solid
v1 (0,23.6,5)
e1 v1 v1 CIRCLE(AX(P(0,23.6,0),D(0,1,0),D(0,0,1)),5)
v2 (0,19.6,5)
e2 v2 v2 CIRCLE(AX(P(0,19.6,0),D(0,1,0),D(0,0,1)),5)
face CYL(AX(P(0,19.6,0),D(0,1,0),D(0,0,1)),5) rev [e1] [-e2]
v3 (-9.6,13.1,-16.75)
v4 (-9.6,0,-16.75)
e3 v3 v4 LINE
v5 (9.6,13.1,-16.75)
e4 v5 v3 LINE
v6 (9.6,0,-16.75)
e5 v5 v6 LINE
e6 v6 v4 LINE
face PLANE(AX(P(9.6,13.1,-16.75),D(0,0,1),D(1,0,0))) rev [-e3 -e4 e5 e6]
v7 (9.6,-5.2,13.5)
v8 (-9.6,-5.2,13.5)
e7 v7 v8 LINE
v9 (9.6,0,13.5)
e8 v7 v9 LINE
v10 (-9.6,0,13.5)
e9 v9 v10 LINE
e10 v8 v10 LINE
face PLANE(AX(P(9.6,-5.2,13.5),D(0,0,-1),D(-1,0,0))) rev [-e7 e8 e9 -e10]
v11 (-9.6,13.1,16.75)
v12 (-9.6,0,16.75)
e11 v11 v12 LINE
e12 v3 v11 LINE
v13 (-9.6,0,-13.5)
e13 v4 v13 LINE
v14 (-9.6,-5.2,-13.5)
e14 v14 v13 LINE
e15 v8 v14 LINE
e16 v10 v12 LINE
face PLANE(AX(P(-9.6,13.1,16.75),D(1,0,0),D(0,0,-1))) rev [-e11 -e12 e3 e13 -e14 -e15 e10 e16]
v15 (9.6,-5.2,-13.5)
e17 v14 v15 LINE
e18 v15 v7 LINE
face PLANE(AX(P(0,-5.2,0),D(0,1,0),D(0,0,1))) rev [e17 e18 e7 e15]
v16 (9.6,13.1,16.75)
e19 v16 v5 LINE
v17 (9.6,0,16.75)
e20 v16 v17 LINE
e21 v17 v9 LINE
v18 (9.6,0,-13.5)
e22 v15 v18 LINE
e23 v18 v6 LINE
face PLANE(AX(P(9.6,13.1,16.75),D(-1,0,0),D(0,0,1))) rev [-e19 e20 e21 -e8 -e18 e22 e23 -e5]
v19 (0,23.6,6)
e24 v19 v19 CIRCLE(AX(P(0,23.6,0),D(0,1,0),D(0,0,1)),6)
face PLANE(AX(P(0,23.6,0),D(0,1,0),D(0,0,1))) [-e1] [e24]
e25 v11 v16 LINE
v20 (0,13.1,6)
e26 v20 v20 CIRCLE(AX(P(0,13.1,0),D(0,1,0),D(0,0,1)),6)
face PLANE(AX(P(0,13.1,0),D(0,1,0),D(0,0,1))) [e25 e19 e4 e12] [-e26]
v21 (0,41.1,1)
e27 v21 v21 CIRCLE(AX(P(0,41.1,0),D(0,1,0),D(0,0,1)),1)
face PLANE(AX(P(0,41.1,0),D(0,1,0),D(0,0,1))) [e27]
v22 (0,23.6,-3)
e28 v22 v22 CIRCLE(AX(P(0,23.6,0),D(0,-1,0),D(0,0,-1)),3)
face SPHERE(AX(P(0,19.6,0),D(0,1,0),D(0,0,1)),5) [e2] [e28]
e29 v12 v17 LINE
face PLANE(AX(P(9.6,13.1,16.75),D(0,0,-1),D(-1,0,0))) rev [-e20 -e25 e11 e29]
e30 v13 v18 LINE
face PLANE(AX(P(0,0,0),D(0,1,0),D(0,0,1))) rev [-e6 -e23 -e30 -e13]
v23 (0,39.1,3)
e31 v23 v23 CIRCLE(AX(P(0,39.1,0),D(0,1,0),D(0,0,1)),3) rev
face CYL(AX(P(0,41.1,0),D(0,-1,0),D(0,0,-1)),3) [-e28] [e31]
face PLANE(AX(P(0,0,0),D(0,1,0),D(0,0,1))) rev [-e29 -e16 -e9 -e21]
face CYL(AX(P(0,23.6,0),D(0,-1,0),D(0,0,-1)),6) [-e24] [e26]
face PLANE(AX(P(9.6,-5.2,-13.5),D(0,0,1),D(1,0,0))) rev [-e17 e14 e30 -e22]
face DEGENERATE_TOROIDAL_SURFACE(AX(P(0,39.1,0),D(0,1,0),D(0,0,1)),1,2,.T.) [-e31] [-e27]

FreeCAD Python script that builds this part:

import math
import FreeCAD as App
import Part
import Sketcher

V = App.Vector


def edges_at(feature, points):
    """Names of the edges that pass closest to the given points."""
    edges = feature.Shape.Edges
    near = lambda p: min(range(len(edges)), key=lambda i: edges[i].distToShape(Part.Vertex(*p))[0])
    return sorted({f"Edge{near(p) + 1}" for p in points})

doc = App.newDocument("Part")
body = doc.addObject("PartDesign::Body", "Body")

# Sketch on XZ plane
sketch1 = body.newObject("Sketcher::SketchObject", "Sketch")
sketch1.AttachmentSupport = (doc.getObject("XZ_Plane"), [""])
sketch1.MapMode = "FlatFace"
sketch1.addGeometry(Part.LineSegment(V(-9.6, -16.75, 0), V(-9.6, 16.75, 0)), False)
sketch1.addGeometry(Part.LineSegment(V(-9.6, 16.75, 0), V(9.6, 16.75, 0)), False)
sketch1.addGeometry(Part.LineSegment(V(9.6, 16.75, 0), V(9.6, -16.75, 0)), False)
sketch1.addGeometry(Part.LineSegment(V(9.6, -16.75, 0), V(-9.6, -16.75, 0)), False)
sketch1.addConstraint(Sketcher.Constraint("Coincident", 0, 2, 1, 1))
sketch1.addConstraint(Sketcher.Constraint("Coincident", 1, 2, 2, 1))
sketch1.addConstraint(Sketcher.Constraint("Coincident", 2, 2, 3, 1))
sketch1.addConstraint(Sketcher.Constraint("Coincident", 3, 2, 0, 1))
sketch1.addConstraint(Sketcher.Constraint("Vertical", 0))
sketch1.addConstraint(Sketcher.Constraint("Horizontal", 1))
sketch1.addConstraint(Sketcher.Constraint("Vertical", 2))
sketch1.addConstraint(Sketcher.Constraint("Horizontal", 3))
sketch1.addConstraint(Sketcher.Constraint("Symmetric", 0, 2, 2, 2, -1, 1))
sketch1.addConstraint(Sketcher.Constraint("DistanceX", 1, 1, 1, 2, 19.2))
sketch1.addConstraint(Sketcher.Constraint("DistanceY", 0, 1, 0, 2, 33.5))
pad1 = body.newObject("PartDesign::Pad", "Pad")
pad1.Profile = sketch1
pad1.Length = 13.1
pad1.Reversed = True

# Sketch on XZ plane
sketch2 = body.newObject("Sketcher::SketchObject", "Sketch001")
sketch2.AttachmentSupport = (doc.getObject("XZ_Plane"), [""])
sketch2.MapMode = "FlatFace"
sketch2.AttachmentOffset = App.Placement(V(0, 0, -13.1), App.Rotation())
sketch2.addGeometry(Part.Circle(V(0, 0, 0), V(0, 0, 1), 6), False)
sketch2.addConstraint(Sketcher.Constraint("Coincident", 0, 3, -1, 1))
sketch2.addConstraint(Sketcher.Constraint("Diameter", 0, 12.0))
pad2 = body.newObject("PartDesign::Pad", "Pad001")
pad2.Profile = sketch2
pad2.Length = 10.5
pad2.Reversed = True

# Sketch on XZ plane
sketch3 = body.newObject("Sketcher::SketchObject", "Sketch002")
sketch3.AttachmentSupport = (doc.getObject("XZ_Plane"), [""])
sketch3.MapMode = "FlatFace"
sketch3.AttachmentOffset = App.Placement(V(0, 0, -23.6), App.Rotation())
sketch3.addGeometry(Part.Circle(V(0, 0, 0), V(0, 0, 1), 5), False)
sketch3.addConstraint(Sketcher.Constraint("Coincident", 0, 3, -1, 1))
sketch3.addConstraint(Sketcher.Constraint("Diameter", 0, 10.0))
pocket1 = body.newObject("PartDesign::Pocket", "Pocket")
pocket1.Profile = sketch3
pocket1.Length = 4
pocket1.Reversed = True

# Sketch on XZ plane
sketch4 = body.newObject("Sketcher::SketchObject", "Sketch003")
sketch4.AttachmentSupport = (doc.getObject("XZ_Plane"), [""])
sketch4.MapMode = "FlatFace"
sketch4.AttachmentOffset = App.Placement(V(0, 0, -19.6), App.Rotation())
sketch4.addGeometry(Part.Circle(V(0, 0, 0), V(0, 0, 1), 3), False)
sketch4.addConstraint(Sketcher.Constraint("Coincident", 0, 3, -1, 1))
sketch4.addConstraint(Sketcher.Constraint("Diameter", 0, 6.0))
pad3 = body.newObject("PartDesign::Pad", "Pad002")
pad3.Profile = sketch4
pad3.Length = 21.5
pad3.Reversed = True

# Sketch on XZ plane
sketch5 = body.newObject("Sketcher::SketchObject", "Sketch004")
sketch5.AttachmentSupport = (doc.getObject("XZ_Plane"), [""])
sketch5.MapMode = "FlatFace"
sketch5.AttachmentOffset = App.Placement(V(0, 0, -19.6), App.Rotation())
sketch5.addGeometry(Part.LineSegment(V(0, 5, 0), V(0, -5, 0)), False)
sketch5.addGeometry(Part.ArcOfCircle(Part.Circle(V(0, 0, 0), V(0, 0, 1), 5), math.radians(90), math.radians(270)), False)
sketch5.addConstraint(Sketcher.Constraint("Coincident", 0, 1, 1, 1))
sketch5.addConstraint(Sketcher.Constraint("Coincident", 1, 2, 0, 2))
sketch5.addConstraint(Sketcher.Constraint("Vertical", 0))
sketch5.addConstraint(Sketcher.Constraint("Coincident", 1, 3, -1, 1))
sketch5.addConstraint(Sketcher.Constraint("PointOnObject", 0, 1, -2))
sketch5.addConstraint(Sketcher.Constraint("Radius", 1, 5.0))
revolution = body.newObject("PartDesign::Revolution", "Revolution")
revolution.Profile = sketch5
revolution.ReferenceAxis = (sketch5, ["V_Axis"])
revolution.Angle = 180
revolution.Reversed = True
doc.recompute()

fillet = body.newObject("PartDesign::Fillet", "Fillet")
fillet.Base = (revolution, edges_at(revolution, [(0, 41.1, -3)]))
fillet.Radius = 2

# Sketch on XZ plane
sketch6 = body.newObject("Sketcher::SketchObject", "Sketch005")
sketch6.AttachmentSupport = (doc.getObject("XZ_Plane"), [""])
sketch6.MapMode = "FlatFace"
sketch6.addGeometry(Part.LineSegment(V(-9.6, 13.5, 0), V(-9.6, -13.5, 0)), False)
sketch6.addGeometry(Part.LineSegment(V(-9.6, -13.5, 0), V(9.6, -13.5, 0)), False)
sketch6.addGeometry(Part.LineSegment(V(9.6, -13.5, 0), V(9.6, 13.5, 0)), False)
sketch6.addGeometry(Part.LineSegment(V(9.6, 13.5, 0), V(-9.6, 13.5, 0)), False)
sketch6.addConstraint(Sketcher.Constraint("Coincident", 0, 2, 1, 1))
sketch6.addConstraint(Sketcher.Constraint("Coincident", 1, 2, 2, 1))
sketch6.addConstraint(Sketcher.Constraint("Coincident", 2, 2, 3, 1))
sketch6.addConstraint(Sketcher.Constraint("Coincident", 3, 2, 0, 1))
sketch6.addConstraint(Sketcher.Constraint("Vertical", 0))
sketch6.addConstraint(Sketcher.Constraint("Horizontal", 1))
sketch6.addConstraint(Sketcher.Constraint("Vertical", 2))
sketch6.addConstraint(Sketcher.Constraint("Horizontal", 3))
sketch6.addConstraint(Sketcher.Constraint("Symmetric", 0, 2, 2, 2, -1, 1))
sketch6.addConstraint(Sketcher.Constraint("DistanceY", 0, 2, 0, 1, 27.0))
sketch6.addConstraint(Sketcher.Constraint("DistanceX", 1, 1, 1, 2, 19.2))
pad4 = body.newObject("PartDesign::Pad", "Pad003")
pad4.Profile = sketch6
pad4.Length = 5.2

doc.recompute()
